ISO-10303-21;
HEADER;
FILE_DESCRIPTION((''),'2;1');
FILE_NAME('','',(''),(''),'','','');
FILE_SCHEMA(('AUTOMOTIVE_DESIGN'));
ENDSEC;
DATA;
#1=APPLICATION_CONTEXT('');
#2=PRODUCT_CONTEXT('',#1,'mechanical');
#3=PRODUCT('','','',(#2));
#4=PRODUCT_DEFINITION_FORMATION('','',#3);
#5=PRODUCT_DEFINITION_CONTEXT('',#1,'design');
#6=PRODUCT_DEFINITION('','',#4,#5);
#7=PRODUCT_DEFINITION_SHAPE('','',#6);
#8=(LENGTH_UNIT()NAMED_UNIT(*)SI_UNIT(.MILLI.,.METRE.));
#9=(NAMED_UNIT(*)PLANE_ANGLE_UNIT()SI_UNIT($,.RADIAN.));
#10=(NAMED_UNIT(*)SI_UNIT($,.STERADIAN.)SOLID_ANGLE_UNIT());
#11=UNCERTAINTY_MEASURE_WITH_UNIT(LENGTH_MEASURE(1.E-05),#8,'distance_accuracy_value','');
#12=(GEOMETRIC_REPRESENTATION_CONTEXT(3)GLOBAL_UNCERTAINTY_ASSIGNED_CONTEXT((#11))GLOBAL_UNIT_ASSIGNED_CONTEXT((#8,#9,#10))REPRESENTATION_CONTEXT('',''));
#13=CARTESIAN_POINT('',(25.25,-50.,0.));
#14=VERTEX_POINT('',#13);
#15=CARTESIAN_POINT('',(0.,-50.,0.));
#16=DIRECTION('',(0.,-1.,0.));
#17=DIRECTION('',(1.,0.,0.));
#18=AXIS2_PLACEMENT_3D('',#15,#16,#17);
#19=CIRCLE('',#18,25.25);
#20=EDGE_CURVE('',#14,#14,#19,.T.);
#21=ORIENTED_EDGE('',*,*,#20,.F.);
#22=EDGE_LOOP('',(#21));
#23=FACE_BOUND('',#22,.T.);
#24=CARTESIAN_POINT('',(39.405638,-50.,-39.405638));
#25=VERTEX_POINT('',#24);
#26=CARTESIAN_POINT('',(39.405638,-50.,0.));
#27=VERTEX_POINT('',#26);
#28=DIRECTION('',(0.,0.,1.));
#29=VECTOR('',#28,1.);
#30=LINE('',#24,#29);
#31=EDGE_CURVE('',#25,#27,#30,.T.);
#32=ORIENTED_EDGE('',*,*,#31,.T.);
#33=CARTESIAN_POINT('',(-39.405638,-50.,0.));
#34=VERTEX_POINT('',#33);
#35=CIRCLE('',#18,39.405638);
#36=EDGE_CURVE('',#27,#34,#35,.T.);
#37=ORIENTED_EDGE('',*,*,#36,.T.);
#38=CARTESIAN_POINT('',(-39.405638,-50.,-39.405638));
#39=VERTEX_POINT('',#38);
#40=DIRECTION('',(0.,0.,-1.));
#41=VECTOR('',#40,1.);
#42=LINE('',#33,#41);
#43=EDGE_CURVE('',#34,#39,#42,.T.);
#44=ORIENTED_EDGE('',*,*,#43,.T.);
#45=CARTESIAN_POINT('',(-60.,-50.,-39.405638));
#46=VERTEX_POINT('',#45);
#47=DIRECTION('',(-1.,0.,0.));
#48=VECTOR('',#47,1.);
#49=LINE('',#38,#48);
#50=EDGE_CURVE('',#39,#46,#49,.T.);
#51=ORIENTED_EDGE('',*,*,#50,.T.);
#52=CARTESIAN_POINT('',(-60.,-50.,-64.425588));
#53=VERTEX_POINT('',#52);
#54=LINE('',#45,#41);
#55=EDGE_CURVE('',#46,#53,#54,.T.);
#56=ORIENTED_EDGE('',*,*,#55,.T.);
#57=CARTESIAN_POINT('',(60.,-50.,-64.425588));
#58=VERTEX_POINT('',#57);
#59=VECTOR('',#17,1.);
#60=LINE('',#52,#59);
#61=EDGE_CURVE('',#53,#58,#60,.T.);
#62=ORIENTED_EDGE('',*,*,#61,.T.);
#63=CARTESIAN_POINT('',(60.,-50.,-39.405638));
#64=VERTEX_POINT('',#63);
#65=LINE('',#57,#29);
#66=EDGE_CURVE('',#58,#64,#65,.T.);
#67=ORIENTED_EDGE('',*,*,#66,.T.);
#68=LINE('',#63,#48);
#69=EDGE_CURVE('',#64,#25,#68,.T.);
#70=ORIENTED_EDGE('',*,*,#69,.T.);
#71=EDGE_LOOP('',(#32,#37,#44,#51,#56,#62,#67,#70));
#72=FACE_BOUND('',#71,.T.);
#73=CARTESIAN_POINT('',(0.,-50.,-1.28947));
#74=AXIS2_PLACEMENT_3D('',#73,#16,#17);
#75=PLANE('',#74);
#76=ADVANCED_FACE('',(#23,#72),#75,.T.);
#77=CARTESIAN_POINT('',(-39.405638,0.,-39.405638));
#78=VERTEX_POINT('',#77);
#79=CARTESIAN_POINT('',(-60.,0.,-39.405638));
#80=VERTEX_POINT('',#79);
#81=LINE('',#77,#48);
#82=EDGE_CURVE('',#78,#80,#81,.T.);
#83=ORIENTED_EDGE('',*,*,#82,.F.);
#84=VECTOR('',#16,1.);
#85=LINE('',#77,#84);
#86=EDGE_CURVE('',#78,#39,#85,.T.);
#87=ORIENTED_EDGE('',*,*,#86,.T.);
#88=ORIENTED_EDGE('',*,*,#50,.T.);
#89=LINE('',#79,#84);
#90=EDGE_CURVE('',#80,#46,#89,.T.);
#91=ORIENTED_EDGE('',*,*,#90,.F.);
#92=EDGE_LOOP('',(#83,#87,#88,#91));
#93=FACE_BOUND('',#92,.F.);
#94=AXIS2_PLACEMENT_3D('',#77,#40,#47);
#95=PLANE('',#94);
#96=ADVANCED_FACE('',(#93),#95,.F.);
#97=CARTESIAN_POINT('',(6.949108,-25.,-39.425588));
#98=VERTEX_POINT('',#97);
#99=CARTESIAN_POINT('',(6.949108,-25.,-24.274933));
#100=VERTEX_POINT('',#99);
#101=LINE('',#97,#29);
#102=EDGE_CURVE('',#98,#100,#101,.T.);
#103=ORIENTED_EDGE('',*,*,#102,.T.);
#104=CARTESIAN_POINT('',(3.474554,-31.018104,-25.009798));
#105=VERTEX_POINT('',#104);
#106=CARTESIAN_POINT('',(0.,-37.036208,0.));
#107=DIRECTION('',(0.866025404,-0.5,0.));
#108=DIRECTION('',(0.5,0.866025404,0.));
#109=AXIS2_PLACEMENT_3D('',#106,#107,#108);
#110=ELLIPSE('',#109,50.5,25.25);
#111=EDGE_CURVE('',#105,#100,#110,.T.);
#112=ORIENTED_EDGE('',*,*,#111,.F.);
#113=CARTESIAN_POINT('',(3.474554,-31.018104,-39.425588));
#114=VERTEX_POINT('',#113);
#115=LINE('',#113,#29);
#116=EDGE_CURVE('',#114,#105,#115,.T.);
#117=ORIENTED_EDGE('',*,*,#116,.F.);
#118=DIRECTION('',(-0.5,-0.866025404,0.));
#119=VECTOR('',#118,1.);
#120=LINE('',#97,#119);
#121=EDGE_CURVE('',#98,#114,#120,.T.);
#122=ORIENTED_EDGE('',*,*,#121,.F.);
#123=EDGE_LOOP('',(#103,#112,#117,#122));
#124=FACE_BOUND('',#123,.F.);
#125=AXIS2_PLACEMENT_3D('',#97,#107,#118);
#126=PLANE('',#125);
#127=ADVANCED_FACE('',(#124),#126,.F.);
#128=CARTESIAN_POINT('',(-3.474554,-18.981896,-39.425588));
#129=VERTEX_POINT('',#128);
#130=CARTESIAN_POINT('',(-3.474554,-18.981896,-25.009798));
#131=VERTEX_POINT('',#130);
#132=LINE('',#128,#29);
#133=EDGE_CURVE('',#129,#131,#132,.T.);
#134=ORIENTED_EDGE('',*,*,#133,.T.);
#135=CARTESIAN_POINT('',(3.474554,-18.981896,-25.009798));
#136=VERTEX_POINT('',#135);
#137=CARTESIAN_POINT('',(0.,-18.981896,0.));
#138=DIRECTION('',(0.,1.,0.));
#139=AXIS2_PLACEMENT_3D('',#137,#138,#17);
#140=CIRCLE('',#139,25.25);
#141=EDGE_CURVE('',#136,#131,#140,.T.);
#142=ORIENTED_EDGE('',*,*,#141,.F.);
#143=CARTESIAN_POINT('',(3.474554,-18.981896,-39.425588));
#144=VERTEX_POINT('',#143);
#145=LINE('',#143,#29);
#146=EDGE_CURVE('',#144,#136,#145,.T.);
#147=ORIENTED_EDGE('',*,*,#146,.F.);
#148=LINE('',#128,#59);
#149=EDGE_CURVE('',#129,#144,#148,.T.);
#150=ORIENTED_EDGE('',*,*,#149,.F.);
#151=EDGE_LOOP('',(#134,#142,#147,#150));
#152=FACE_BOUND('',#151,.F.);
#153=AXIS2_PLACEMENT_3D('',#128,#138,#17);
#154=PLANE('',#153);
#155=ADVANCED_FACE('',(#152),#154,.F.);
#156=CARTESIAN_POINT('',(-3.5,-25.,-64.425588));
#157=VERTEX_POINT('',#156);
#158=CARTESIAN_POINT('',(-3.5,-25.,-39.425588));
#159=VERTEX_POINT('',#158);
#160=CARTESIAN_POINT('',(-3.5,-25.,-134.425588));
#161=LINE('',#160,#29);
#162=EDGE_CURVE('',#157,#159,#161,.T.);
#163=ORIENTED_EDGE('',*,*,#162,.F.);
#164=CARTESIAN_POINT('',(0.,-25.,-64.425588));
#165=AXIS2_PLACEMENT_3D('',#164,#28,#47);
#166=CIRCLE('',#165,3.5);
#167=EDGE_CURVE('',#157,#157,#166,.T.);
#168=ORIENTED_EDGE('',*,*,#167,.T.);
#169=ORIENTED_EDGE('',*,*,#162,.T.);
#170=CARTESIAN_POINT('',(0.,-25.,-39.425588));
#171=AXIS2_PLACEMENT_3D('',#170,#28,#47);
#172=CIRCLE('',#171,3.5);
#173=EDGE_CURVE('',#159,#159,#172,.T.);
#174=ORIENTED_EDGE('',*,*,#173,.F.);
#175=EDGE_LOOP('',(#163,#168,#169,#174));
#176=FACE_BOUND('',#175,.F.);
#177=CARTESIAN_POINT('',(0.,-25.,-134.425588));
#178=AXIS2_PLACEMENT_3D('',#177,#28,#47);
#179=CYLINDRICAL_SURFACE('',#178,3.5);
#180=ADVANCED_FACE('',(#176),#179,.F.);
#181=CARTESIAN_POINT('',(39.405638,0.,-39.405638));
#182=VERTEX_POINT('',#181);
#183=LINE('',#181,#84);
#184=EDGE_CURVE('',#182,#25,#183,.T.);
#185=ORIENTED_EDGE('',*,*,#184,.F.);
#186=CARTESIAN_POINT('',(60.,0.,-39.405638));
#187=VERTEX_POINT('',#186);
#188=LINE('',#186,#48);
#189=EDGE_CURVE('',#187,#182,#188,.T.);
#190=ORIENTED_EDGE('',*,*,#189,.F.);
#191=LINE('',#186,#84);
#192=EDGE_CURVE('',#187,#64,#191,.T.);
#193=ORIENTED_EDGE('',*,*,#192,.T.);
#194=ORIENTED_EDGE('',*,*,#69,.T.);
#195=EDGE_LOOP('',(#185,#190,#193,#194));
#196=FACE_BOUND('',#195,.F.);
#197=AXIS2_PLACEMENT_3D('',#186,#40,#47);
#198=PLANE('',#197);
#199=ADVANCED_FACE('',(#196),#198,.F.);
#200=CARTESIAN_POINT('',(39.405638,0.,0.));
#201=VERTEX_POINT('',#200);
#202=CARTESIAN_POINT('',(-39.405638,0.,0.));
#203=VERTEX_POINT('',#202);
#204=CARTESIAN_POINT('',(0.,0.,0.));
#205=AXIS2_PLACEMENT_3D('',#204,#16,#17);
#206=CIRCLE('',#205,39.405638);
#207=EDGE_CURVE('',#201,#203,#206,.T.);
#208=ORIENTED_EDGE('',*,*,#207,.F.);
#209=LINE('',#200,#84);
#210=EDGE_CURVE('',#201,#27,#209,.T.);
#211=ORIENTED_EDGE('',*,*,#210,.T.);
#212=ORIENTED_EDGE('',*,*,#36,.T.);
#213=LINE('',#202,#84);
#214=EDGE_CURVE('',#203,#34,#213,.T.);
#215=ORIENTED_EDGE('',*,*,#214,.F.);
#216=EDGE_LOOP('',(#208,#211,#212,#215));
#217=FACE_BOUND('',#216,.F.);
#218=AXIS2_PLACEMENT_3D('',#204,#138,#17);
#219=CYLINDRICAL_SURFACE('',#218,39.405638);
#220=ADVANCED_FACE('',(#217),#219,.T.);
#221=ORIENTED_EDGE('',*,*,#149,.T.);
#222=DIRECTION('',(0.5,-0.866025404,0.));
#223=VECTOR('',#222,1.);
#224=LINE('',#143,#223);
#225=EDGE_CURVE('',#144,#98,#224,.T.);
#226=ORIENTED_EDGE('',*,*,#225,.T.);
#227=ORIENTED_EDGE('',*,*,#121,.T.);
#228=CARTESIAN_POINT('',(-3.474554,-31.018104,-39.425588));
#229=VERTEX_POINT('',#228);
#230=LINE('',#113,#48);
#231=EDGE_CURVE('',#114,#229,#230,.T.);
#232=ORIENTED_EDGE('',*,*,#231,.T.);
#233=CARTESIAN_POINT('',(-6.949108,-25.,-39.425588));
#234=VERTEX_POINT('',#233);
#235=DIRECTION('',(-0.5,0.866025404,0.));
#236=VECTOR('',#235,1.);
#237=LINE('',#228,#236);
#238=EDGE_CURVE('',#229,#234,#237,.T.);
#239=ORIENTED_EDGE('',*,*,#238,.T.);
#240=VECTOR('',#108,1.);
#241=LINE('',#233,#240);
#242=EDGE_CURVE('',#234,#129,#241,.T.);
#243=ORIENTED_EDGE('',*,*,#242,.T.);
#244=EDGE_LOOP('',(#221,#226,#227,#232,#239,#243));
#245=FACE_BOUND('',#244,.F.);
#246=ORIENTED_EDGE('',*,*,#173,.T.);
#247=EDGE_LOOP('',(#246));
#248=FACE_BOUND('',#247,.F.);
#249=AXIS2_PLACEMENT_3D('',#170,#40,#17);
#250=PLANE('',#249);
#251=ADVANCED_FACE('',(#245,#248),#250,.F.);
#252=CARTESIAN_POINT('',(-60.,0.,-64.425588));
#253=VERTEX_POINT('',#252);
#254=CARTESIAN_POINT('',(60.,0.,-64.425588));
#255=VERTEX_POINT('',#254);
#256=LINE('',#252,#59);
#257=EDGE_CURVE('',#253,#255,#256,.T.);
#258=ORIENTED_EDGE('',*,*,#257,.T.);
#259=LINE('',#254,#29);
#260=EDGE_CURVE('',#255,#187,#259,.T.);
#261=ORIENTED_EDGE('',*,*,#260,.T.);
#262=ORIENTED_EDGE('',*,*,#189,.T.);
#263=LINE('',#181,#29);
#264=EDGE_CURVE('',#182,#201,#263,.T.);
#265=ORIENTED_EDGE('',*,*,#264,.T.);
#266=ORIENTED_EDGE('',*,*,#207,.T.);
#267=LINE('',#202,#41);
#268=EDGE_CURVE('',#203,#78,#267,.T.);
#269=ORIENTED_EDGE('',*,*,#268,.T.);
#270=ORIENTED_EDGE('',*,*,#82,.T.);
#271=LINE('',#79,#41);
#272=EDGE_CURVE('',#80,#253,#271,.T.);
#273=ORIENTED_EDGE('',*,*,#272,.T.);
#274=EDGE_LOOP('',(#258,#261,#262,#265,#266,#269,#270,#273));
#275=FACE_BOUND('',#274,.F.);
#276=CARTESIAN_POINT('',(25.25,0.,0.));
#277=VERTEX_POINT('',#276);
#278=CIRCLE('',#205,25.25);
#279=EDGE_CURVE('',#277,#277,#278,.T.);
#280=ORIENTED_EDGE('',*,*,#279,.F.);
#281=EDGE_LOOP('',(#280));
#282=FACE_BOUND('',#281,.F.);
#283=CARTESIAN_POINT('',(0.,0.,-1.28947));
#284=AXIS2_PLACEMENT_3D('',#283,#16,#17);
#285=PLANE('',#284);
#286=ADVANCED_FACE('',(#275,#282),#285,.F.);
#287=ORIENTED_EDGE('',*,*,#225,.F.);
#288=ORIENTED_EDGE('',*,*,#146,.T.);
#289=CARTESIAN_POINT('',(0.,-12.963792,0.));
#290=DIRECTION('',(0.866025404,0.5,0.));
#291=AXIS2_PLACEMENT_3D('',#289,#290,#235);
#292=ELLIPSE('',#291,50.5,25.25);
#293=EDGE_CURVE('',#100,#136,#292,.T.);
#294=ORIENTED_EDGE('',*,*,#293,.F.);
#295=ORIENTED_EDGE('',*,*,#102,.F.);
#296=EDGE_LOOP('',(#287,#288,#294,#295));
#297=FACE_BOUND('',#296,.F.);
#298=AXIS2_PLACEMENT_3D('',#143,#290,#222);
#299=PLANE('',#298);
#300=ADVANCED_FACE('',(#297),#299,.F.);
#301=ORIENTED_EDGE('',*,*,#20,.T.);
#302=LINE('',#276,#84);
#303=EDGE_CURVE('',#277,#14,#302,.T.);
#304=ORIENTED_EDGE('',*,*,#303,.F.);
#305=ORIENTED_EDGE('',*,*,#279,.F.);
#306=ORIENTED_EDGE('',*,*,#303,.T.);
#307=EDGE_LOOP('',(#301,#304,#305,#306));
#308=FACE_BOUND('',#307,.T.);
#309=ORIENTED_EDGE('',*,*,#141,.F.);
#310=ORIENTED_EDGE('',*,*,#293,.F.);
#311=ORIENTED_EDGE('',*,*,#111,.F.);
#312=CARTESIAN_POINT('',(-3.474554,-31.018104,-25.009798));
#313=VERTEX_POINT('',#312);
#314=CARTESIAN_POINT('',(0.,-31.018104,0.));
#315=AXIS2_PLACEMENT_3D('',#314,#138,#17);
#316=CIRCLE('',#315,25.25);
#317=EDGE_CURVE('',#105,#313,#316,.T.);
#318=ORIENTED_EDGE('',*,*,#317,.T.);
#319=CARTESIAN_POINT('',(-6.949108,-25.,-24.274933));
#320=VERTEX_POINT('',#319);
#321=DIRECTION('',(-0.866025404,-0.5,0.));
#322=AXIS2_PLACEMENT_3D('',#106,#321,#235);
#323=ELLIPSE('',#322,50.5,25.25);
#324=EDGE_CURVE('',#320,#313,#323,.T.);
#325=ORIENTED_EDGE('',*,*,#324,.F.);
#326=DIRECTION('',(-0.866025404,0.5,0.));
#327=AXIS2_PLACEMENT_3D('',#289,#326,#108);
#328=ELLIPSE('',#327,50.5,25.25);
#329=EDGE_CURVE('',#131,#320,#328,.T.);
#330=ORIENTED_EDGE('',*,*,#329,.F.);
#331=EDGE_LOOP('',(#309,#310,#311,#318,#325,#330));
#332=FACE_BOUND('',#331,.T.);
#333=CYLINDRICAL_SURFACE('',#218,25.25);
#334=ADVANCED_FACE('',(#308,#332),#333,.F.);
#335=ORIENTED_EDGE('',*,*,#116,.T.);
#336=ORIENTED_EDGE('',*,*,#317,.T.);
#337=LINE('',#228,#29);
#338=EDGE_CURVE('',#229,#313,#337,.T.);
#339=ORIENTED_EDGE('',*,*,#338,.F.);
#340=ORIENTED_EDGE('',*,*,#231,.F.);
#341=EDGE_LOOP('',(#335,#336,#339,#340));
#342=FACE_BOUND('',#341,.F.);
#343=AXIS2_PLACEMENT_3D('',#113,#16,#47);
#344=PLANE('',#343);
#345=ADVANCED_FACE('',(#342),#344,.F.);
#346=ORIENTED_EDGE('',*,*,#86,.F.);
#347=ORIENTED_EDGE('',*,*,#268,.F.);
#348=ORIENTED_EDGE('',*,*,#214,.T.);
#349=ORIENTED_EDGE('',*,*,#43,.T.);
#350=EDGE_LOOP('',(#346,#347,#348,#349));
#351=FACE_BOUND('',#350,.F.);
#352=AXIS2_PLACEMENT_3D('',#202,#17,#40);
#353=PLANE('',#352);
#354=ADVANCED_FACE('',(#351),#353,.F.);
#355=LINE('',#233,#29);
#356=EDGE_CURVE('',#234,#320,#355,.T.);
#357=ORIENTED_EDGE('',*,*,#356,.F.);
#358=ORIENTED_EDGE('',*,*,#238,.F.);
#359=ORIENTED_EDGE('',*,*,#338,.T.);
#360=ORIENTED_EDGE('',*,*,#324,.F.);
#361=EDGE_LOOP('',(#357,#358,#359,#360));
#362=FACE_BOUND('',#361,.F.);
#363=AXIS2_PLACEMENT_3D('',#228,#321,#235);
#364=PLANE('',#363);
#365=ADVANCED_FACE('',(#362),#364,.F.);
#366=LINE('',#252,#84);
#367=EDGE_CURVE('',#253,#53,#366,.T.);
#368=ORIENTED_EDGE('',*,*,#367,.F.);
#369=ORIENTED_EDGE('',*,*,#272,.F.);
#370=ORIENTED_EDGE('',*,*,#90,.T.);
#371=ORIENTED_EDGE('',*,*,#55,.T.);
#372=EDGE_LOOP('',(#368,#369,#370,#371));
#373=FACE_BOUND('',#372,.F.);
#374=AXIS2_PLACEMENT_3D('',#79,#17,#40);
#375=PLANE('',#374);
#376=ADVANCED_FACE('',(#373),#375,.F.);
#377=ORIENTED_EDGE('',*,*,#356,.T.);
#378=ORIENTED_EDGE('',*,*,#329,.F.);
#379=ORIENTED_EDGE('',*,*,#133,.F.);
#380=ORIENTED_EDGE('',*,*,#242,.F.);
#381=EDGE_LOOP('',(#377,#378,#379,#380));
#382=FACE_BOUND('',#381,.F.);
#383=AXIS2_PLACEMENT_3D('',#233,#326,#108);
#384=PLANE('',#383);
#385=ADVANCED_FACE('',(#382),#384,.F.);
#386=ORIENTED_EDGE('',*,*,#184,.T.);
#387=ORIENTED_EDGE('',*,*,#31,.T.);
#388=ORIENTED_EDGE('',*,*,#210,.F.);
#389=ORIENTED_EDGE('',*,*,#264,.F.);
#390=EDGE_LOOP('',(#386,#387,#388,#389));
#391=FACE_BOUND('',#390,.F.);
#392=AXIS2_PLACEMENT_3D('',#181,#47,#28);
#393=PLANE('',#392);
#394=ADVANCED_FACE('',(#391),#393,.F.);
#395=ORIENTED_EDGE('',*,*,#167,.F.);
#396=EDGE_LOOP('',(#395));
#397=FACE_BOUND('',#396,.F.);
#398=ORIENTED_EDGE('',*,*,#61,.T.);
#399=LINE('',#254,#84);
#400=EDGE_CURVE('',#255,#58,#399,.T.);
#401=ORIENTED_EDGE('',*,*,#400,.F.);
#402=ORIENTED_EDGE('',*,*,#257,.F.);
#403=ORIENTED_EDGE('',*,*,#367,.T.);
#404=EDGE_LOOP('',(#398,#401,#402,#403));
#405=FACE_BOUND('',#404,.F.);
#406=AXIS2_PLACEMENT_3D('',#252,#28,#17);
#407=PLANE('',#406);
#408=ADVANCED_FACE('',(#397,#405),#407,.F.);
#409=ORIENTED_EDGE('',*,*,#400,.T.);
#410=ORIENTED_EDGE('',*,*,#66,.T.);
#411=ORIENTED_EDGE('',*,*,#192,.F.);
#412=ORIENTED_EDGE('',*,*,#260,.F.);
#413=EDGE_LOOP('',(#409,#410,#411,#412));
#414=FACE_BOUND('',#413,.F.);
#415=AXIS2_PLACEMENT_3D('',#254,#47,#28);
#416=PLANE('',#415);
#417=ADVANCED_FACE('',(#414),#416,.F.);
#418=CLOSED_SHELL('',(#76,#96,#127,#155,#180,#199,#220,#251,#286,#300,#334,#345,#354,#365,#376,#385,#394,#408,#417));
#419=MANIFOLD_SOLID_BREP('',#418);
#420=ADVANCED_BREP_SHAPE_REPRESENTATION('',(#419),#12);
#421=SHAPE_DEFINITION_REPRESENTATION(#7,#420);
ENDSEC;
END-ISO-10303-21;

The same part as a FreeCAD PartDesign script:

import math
import FreeCAD as App
import Part
import Sketcher
Q = App.Units.Quantity


def add_polygon(sketch, points):
    """Adds a closed chain of lines whose ends are joined by coincident constraints."""
    first, n = sketch.GeometryCount, len(points)
    for a, b in zip(points, points[1:] + points[:1]):
        sketch.addGeometry(Part.LineSegment(App.Vector(*a, 0), App.Vector(*b, 0)), False)
    for i in range(n):
        sketch.addConstraint(Sketcher.Constraint("Coincident", first + i, 2, first + (i + 1) % n, 1))

doc = App.newDocument("Part")
body = doc.addObject("PartDesign::Body", "Body")

# Sketch on XZ plane
sketch1 = body.newObject("Sketcher::SketchObject", "Sketch")
sketch1.AttachmentSupport = (doc.getObject("XZ_Plane"), [""])
sketch1.MapMode = "FlatFace"
sketch1.addGeometry(Part.ArcOfCircle(Part.Circle(App.Vector(0, 0, 0), App.Vector(0, 0, 1), 39), math.radians(0), math.radians(180)), False)
sketch1.addGeometry(Part.LineSegment(App.Vector(-39, 0, 0), App.Vector(-39, -39, 0)), False)
sketch1.addGeometry(Part.LineSegment(App.Vector(-39, -39, 0), App.Vector(-60, -39, 0)), False)
sketch1.addGeometry(Part.LineSegment(App.Vector(-60, -39, 0), App.Vector(-60, -64, 0)), False)
sketch1.addGeometry(Part.LineSegment(App.Vector(-60, -64, 0), App.Vector(60, -64, 0)), False)
sketch1.addGeometry(Part.LineSegment(App.Vector(60, -64, 0), App.Vector(60, -39, 0)), False)
sketch1.addGeometry(Part.LineSegment(App.Vector(60, -39, 0), App.Vector(39, -39, 0)), False)
sketch1.addGeometry(Part.LineSegment(App.Vector(39, -39, 0), App.Vector(39, 0, 0)), False)
sketch1.addGeometry(Part.Circle(App.Vector(0, 0, 0), App.Vector(0, 0, 1), 25), False)
sketch1.addConstraint(Sketcher.Constraint("Tangent", 0, 2, 1, 1))
sketch1.addConstraint(Sketcher.Constraint("Coincident", 1, 2, 2, 1))
sketch1.addConstraint(Sketcher.Constraint("Coincident", 2, 2, 3, 1))
sketch1.addConstraint(Sketcher.Constraint("Coincident", 3, 2, 4, 1))
sketch1.addConstraint(Sketcher.Constraint("Coincident", 4, 2, 5, 1))
sketch1.addConstraint(Sketcher.Constraint("Coincident", 5, 2, 6, 1))
sketch1.addConstraint(Sketcher.Constraint("Coincident", 6, 2, 7, 1))
sketch1.addConstraint(Sketcher.Constraint("Tangent", 7, 2, 0, 1))
sketch1.addConstraint(Sketcher.Constraint("Vertical", 1))
sketch1.addConstraint(Sketcher.Constraint("Horizontal", 2))
sketch1.addConstraint(Sketcher.Constraint("Vertical", 3))
sketch1.addConstraint(Sketcher.Constraint("Horizontal", 4))
sketch1.addConstraint(Sketcher.Constraint("Vertical", 5))
sketch1.addConstraint(Sketcher.Constraint("Horizontal", 6))
sketch1.addConstraint(Sketcher.Constraint("Vertical", 7))
sketch1.addConstraint(Sketcher.Constraint("Coincident", 0, 3, -1, 1))
sketch1.addConstraint(Sketcher.Constraint("Coincident", 8, 3, -1, 1))
sketch1.addConstraint(Sketcher.Constraint("Symmetric", 2, 2, 5, 2, -2))
sketch1.addConstraint(Sketcher.Constraint("Diameter", 8, Q("50.5 mm")))
sketch1.addConstraint(Sketcher.Constraint("DistanceX", 4, 1, 4, 2, Q("120 mm")))
sketch1.addConstraint(Sketcher.Constraint("Radius", 0, Q("39.405638 mm")))
sketch1.addConstraint(Sketcher.Constraint("DistanceY", 3, 2, 3, 1, Q("25.01995 mm")))
sketch1.addConstraint(Sketcher.Constraint("DistanceY", 1, 2, 1, 1, Q("39.405638 mm")))
pad1 = body.newObject("PartDesign::Pad", "Pad")
pad1.Profile = sketch1
pad1.Length = 50

# Sketch on XY plane
sketch2 = body.newObject("Sketcher::SketchObject", "Sketch001")
sketch2.AttachmentSupport = (doc.getObject("XY_Plane"), [""])
sketch2.MapMode = "FlatFace"
sketch2.AttachmentOffset = App.Placement(App.Vector(0, 0, -64.425588), App.Rotation())
sketch2.addGeometry(Part.Circle(App.Vector(0, -25, 0), App.Vector(0, 0, 1), 3.5), False)
sketch2.addConstraint(Sketcher.Constraint("PointOnObject", 0, 3, -2))
sketch2.addConstraint(Sketcher.Constraint("Diameter", 0, Q("7 mm")))
sketch2.addConstraint(Sketcher.Constraint("DistanceY", 0, 3, -1, 1, Q("25 mm")))
doc.recompute()
hole = body.newObject("PartDesign::Hole", "Hole")
hole.Profile = sketch2
hole.ThreadType = "None"
hole.Diameter = 7
hole.DepthType = "Dimension"
hole.Depth = 70
hole.DrillPoint = "Angled"
hole.DrillPointAngle = 118
hole.Reversed = True

# Sketch on XY plane
sketch3 = body.newObject("Sketcher::SketchObject", "Sketch002")
sketch3.AttachmentSupport = (doc.getObject("XY_Plane"), [""])
sketch3.MapMode = "FlatFace"
sketch3.AttachmentOffset = App.Placement(App.Vector(0, 0, -39.425588), App.Rotation())
add_polygon(sketch3, [(-3, -19), (3, -19), (7, -25), (3, -31), (-3, -31), (-7, -25)])  # lines 0-5
sketch3.addConstraint(Sketcher.Constraint("Horizontal", 0))
sketch3.addConstraint(Sketcher.Constraint("Horizontal", 3))
sketch3.addConstraint(Sketcher.Constraint("Symmetric", 1, 2, 4, 2, -2))
sketch3.addConstraint(Sketcher.Constraint("Parallel", 1, 4))
sketch3.addConstraint(Sketcher.Constraint("Parallel", 2, 5))
sketch3.addConstraint(Sketcher.Constraint("Vertical", 0, 2, 2, 2))
sketch3.addConstraint(Sketcher.Constraint("Vertical", 3, 2, 5, 2))
sketch3.addConstraint(Sketcher.Constraint("Angle", 1, Q("-60 deg")))
sketch3.addConstraint(Sketcher.Constraint("DistanceY", 1, 2, -1, 1, Q("25 mm")))
sketch3.addConstraint(Sketcher.Constraint("DistanceX", 0, 1, 0, 2, Q("6.949108 mm")))
sketch3.addConstraint(Sketcher.Constraint("Distance", 1, Q("6.949108 mm")))
pocket1 = body.newObject("PartDesign::Pocket", "Pocket")
pocket1.Profile = sketch3
pocket1.Length = 25
pocket1.Reversed = True

doc.recompute()
